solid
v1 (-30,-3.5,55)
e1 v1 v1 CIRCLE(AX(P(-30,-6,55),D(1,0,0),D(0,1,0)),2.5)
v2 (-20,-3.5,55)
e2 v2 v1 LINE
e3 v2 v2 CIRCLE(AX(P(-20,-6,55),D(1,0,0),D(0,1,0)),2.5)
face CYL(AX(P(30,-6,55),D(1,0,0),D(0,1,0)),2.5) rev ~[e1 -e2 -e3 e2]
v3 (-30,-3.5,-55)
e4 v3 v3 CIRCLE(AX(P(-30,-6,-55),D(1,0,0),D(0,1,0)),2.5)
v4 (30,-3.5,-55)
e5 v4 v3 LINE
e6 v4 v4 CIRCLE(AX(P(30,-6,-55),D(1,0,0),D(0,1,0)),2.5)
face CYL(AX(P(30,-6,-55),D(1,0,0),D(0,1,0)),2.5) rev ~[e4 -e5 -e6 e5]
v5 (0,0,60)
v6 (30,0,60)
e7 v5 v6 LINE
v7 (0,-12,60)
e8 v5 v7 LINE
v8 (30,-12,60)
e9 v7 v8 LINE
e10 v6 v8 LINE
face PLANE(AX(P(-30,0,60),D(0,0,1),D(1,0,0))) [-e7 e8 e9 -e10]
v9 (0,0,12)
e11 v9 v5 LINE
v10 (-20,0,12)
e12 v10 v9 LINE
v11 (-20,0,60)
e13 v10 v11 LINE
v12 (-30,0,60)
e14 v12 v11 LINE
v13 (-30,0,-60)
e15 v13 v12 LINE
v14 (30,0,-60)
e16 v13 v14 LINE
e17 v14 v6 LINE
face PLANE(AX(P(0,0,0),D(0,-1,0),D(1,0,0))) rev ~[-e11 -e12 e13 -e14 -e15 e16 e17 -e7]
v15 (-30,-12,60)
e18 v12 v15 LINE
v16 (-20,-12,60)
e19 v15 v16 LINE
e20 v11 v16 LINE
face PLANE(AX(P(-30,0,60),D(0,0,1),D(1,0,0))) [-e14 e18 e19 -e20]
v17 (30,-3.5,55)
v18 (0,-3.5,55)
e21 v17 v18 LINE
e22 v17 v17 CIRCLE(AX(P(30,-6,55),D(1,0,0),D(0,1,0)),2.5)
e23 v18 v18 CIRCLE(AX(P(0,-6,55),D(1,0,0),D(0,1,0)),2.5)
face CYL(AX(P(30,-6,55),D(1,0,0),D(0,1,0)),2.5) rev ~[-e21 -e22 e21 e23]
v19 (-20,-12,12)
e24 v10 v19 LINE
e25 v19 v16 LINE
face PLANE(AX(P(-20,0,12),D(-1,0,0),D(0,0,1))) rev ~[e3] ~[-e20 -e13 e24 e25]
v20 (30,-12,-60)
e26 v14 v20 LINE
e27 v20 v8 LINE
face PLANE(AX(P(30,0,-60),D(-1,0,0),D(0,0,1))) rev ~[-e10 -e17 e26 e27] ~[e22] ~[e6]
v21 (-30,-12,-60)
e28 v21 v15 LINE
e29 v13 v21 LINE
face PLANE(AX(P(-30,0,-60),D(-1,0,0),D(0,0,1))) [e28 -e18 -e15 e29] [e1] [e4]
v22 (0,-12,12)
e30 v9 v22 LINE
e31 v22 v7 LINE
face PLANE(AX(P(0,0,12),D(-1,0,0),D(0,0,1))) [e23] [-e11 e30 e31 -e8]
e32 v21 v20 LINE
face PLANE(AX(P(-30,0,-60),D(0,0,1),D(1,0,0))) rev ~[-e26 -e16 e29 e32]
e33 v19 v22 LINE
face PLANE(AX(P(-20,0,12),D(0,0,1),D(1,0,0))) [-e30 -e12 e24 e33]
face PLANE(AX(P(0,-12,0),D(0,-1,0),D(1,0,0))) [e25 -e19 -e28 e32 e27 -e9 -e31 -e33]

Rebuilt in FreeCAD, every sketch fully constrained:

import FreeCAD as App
import Part
import Sketcher
from FreeCAD import Vector
Q = App.Units.Quantity

doc = App.newDocument("Part")
body = doc.addObject("PartDesign::Body", "Body")

# Sketch on XZ plane
sketch1 = body.newObject("Sketcher::SketchObject", "Sketch")
sketch1.AttachmentSupport = (doc.getObject("XZ_Plane"), [""])
sketch1.MapMode = "FlatFace"
sketch1.addGeometry([
    Part.LineSegment(Vector(-30, 60, 0), Vector(-30, -60, 0)),
    Part.LineSegment(Vector(-30, -60, 0), Vector(30, -60, 0)),
    Part.LineSegment(Vector(30, -60, 0), Vector(30, 60, 0)),
    Part.LineSegment(Vector(30, 60, 0), Vector(-30, 60, 0)),
], False)
sketch1.addConstraint([
    Sketcher.Constraint("Coincident", 0, 2, 1, 1),
    Sketcher.Constraint("Coincident", 1, 2, 2, 1),
    Sketcher.Constraint("Coincident", 2, 2, 3, 1),
    Sketcher.Constraint("Coincident", 3, 2, 0, 1),
    Sketcher.Constraint("Vertical", 0),
    Sketcher.Constraint("Horizontal", 1),
    Sketcher.Constraint("Vertical", 2),
    Sketcher.Constraint("Horizontal", 3),
    Sketcher.Constraint("Symmetric", 0, 2, 2, 2, -1, 1),
    Sketcher.Constraint("DistanceX", 1, 1, 1, 2, Q("60 mm")),
    Sketcher.Constraint("DistanceY", 0, 2, 0, 1, Q("120 mm")),
])
pad1 = body.newObject("PartDesign::Pad", "Pad")
pad1.Profile = sketch1
pad1.Length = 12

# Sketch on XZ plane
sketch2 = body.newObject("Sketcher::SketchObject", "Sketch001")
sketch2.AttachmentSupport = (doc.getObject("XZ_Plane"), [""])
sketch2.MapMode = "FlatFace"
sketch2.addGeometry([
    Part.LineSegment(Vector(-20, 60, 0), Vector(-20, 12, 0)),
    Part.LineSegment(Vector(-20, 12, 0), Vector(0, 12, 0)),
    Part.LineSegment(Vector(0, 12, 0), Vector(0, 60, 0)),
    Part.LineSegment(Vector(0, 60, 0), Vector(-20, 60, 0)),
], False)
sketch2.addConstraint([
    Sketcher.Constraint("Coincident", 0, 2, 1, 1),
    Sketcher.Constraint("Coincident", 1, 2, 2, 1),
    Sketcher.Constraint("Coincident", 2, 2, 3, 1),
    Sketcher.Constraint("Coincident", 3, 2, 0, 1),
    Sketcher.Constraint("Vertical", 0),
    Sketcher.Constraint("Horizontal", 1),
    Sketcher.Constraint("Vertical", 2),
    Sketcher.Constraint("Horizontal", 3),
    Sketcher.Constraint("PointOnObject", 1, 2, -2),
    Sketcher.Constraint("DistanceX", 1, 1, 1, 2, Q("20 mm")),
    Sketcher.Constraint("DistanceY", 0, 2, 0, 1, Q("48 mm")),
    Sketcher.Constraint("DistanceY", -1, 1, 0, 2, Q("12 mm")),
])
pocket1 = body.newObject("PartDesign::Pocket", "Pocket")
pocket1.Profile = sketch2
pocket1.Type = "ThroughAll"
pocket1.Reversed = True

# Sketch on YZ plane
sketch3 = body.newObject("Sketcher::SketchObject", "Sketch002")
sketch3.AttachmentSupport = (doc.getObject("YZ_Plane"), [""])
sketch3.MapMode = "FlatFace"
sketch3.AttachmentOffset = App.Placement(Vector(0, 0, 30), App.Rotation())
sketch3.addGeometry(Part.Circle(Vector(-6, 55, 0), Vector(0, 0, 1), 2.5), False)
sketch3.addConstraint([
    Sketcher.Constraint("Diameter", 0, Q("5 mm")),
    Sketcher.Constraint("DistanceX", 0, 3, -1, 1, Q("6 mm")),
    Sketcher.Constraint("DistanceY", -1, 1, 0, 3, Q("55 mm")),
])
pocket2 = body.newObject("PartDesign::Pocket", "Pocket001")
pocket2.Profile = sketch3
pocket2.Type = "ThroughAll"

# Sketch on YZ plane
sketch4 = body.newObject("Sketcher::SketchObject", "Sketch003")
sketch4.AttachmentSupport = (doc.getObject("YZ_Plane"), [""])
sketch4.MapMode = "FlatFace"
sketch4.AttachmentOffset = App.Placement(Vector(0, 0, 30), App.Rotation())
sketch4.addGeometry(Part.Circle(Vector(-6, -55, 0), Vector(0, 0, 1), 2.5), False)
sketch4.addConstraint([
    Sketcher.Constraint("Diameter", 0, Q("5 mm")),
    Sketcher.Constraint("DistanceX", 0, 3, -1, 1, Q("6 mm")),
    Sketcher.Constraint("DistanceY", 0, 3, -1, 1, Q("55 mm")),
])
pocket3 = body.newObject("PartDesign::Pocket", "Pocket002")
pocket3.Profile = sketch4
pocket3.Length = 152.4

doc.recompute()
